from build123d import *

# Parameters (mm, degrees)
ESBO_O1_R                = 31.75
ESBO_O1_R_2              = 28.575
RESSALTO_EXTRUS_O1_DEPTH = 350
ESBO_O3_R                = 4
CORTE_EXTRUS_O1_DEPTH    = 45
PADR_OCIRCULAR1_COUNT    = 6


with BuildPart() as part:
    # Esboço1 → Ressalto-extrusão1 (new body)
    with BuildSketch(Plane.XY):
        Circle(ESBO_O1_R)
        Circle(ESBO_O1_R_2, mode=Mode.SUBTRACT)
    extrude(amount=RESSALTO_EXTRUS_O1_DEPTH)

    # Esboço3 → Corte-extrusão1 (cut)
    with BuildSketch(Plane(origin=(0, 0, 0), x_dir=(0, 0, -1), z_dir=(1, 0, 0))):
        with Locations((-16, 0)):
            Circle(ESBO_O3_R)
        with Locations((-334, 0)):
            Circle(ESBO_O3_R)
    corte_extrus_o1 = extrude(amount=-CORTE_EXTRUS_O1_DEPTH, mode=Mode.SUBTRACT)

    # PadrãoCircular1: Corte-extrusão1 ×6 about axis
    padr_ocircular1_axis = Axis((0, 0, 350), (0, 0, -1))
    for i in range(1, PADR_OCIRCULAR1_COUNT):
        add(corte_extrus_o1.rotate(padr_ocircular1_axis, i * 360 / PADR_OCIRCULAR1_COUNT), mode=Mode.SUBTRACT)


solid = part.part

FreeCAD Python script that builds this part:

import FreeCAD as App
import Part
import Sketcher
Q = App.Units.Quantity

doc = App.newDocument("Part")
body = doc.addObject("PartDesign::Body", "Body")

sketch1 = body.newObject("Sketcher::SketchObject", "Sketch")
sketch1.AttachmentSupport = (doc.getObject("XY_Plane"), [""])
sketch1.MapMode = "FlatFace"
sketch1.addGeometry([
    Part.Circle(App.Vector(0, 0, 0), App.Vector(0, 0, 1), 32),
    Part.Circle(App.Vector(0, 0, 0), App.Vector(0, 0, 1), 29),
], False)
sketch1.addConstraint([
    Sketcher.Constraint("Coincident", 0, 3, -1, 1),
    Sketcher.Constraint("Coincident", 1, 3, -1, 1),
    Sketcher.Constraint("Diameter", 0, Q("63.5 mm")),
    Sketcher.Constraint("Diameter", 1, Q("57.15 mm")),
])
pad1 = body.newObject("PartDesign::Pad", "Pad")
pad1.Profile = sketch1
pad1.Length = 350

sketch2 = body.newObject("Sketcher::SketchObject", "Sketch001")
sketch2.AttachmentSupport = (doc.getObject("YZ_Plane"), [""])
sketch2.MapMode = "FlatFace"
sketch2.addGeometry([
    Part.Circle(App.Vector(0, 16, 0), App.Vector(0, 0, 1), 4),
    Part.Circle(App.Vector(0, 334, 0), App.Vector(0, 0, 1), 4),
], False)
sketch2.addConstraint([
    Sketcher.Constraint("Equal", 0, 1),
    Sketcher.Constraint("PointOnObject", 0, 3, -2),
    Sketcher.Constraint("PointOnObject", 1, 3, -2),
    Sketcher.Constraint("Diameter", 0, Q("8 mm")),
    Sketcher.Constraint("DistanceY", -1, 1, 0, 3, Q("16 mm")),
    Sketcher.Constraint("DistanceY", -1, 1, 1, 3, Q("334 mm")),
])
pocket1 = body.newObject("PartDesign::Pocket", "Pocket")
pocket1.Profile = sketch2
pocket1.Length = 45
doc.recompute()

polarpattern = body.newObject("PartDesign::PolarPattern", "PolarPattern")
polarpattern.Originals = [pocket1]
polarpattern.Axis = (doc.getObject("Z_Axis"), [""])
polarpattern.Angle = 360
polarpattern.Occurrences = 6
body.Tip = polarpattern

doc.recompute()
